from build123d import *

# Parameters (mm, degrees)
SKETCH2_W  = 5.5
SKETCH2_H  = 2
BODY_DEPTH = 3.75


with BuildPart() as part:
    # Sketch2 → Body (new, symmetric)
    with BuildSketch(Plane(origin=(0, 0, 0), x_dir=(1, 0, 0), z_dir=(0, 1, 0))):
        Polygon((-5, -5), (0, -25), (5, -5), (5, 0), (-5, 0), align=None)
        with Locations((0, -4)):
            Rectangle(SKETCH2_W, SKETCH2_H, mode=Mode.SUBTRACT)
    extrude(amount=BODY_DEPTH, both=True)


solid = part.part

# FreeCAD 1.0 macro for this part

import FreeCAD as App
import Part
import Sketcher

V = App.Vector
Q = App.Units.Quantity

doc = App.newDocument("Part")
params = doc.addObject("Spreadsheet::Sheet", "Params")
for row, (alias, value) in enumerate([
    ("sketch1_width", "10 mm"),
    ("sketch1_height", "5 mm"),
    ("sketch1_height2", "2 mm"),
    ("sketch1_width2", "5.5 mm"),
    ("pad1_length", "7.5 mm"),
], start=1):
    params.set(f"A{row}", alias)
    params.set(f"B{row}", "=" + value)
    params.setAlias(f"B{row}", alias)

body = doc.addObject("PartDesign::Body", "Body")

# Sketch on XZ plane
sketch1 = doc.addObject("Sketcher::SketchObject", "Sketch")
body.addObject(sketch1)
sketch1.AttachmentSupport = (doc.XZ_Plane, [""])
sketch1.MapMode = "FlatFace"
sketch1.addGeometry([
    Part.LineSegment(V(-5, 5, 0), V(0, 25, 0)),  # 0
    Part.LineSegment(V(0, 25, 0), V(5, 5, 0)),  # 1
    Part.LineSegment(V(5, 5, 0), V(5, 0, 0)),  # 2
    Part.LineSegment(V(5, 0, 0), V(-5, 0, 0)),  # 3
    Part.LineSegment(V(-5, 0, 0), V(-5, 5, 0)),  # 4
    Part.LineSegment(V(2.8, 5, 0), V(-2.8, 5, 0)),  # 5
    Part.LineSegment(V(-2.8, 5, 0), V(-2.8, 3, 0)),  # 6
    Part.LineSegment(V(-2.8, 3, 0), V(2.8, 3, 0)),  # 7
    Part.LineSegment(V(2.8, 3, 0), V(2.8, 5, 0)),  # 8
], False)
sketch1.addConstraint([
    Sketcher.Constraint("Coincident", 0, 2, 1, 1),
    Sketcher.Constraint("Coincident", 1, 2, 2, 1),
    Sketcher.Constraint("Coincident", 2, 2, 3, 1),
    Sketcher.Constraint("Coincident", 3, 2, 4, 1),
    Sketcher.Constraint("Coincident", 4, 2, 0, 1),
    Sketcher.Constraint("Coincident", 5, 2, 6, 1),
    Sketcher.Constraint("Coincident", 6, 2, 7, 1),
    Sketcher.Constraint("Coincident", 7, 2, 8, 1),
    Sketcher.Constraint("Coincident", 8, 2, 5, 1),
    Sketcher.Constraint("Vertical", 2),
    Sketcher.Constraint("Horizontal", 3),
    Sketcher.Constraint("Vertical", 4),
    Sketcher.Constraint("Horizontal", 5),
    Sketcher.Constraint("Vertical", 6),
    Sketcher.Constraint("Horizontal", 7),
    Sketcher.Constraint("Vertical", 8),
    Sketcher.Constraint("Symmetric", 2, 2, 3, 2, -1, 1),
    Sketcher.Constraint("PointOnObject", 0, 2, -2),
    Sketcher.Constraint("Horizontal", 1, 2, 4, 2),
    Sketcher.Constraint("Horizontal", 4, 2, 5, 2),
    Sketcher.Constraint("DistanceX", 3, 2, 3, 1, Q("10 mm")),
    Sketcher.Constraint("DistanceY", 2, 2, 2, 1, Q("5 mm")),
    Sketcher.Constraint("DistanceY", 6, 2, 6, 1, Q("2 mm")),
    Sketcher.Constraint("DistanceX", 5, 2, 5, 1, Q("5.5 mm")),
    Sketcher.Constraint("DistanceY", -1, 1, 0, 2, Q("25 mm")),
    Sketcher.Constraint("DistanceX", 5, 2, -1, 1, Q("2.75 mm")),
])
sketch1.setExpression("Constraints[20]", "Params.sketch1_width")
sketch1.setExpression("Constraints[21]", "Params.sketch1_height")
sketch1.setExpression("Constraints[22]", "Params.sketch1_height2")
sketch1.setExpression("Constraints[23]", "Params.sketch1_width2")
pad1 = doc.addObject("PartDesign::Pad", "Pad")
body.addObject(pad1)
pad1.Profile = sketch1
pad1.setExpression("Length", "Params.pad1_length")
pad1.Midplane = True

doc.recompute()
